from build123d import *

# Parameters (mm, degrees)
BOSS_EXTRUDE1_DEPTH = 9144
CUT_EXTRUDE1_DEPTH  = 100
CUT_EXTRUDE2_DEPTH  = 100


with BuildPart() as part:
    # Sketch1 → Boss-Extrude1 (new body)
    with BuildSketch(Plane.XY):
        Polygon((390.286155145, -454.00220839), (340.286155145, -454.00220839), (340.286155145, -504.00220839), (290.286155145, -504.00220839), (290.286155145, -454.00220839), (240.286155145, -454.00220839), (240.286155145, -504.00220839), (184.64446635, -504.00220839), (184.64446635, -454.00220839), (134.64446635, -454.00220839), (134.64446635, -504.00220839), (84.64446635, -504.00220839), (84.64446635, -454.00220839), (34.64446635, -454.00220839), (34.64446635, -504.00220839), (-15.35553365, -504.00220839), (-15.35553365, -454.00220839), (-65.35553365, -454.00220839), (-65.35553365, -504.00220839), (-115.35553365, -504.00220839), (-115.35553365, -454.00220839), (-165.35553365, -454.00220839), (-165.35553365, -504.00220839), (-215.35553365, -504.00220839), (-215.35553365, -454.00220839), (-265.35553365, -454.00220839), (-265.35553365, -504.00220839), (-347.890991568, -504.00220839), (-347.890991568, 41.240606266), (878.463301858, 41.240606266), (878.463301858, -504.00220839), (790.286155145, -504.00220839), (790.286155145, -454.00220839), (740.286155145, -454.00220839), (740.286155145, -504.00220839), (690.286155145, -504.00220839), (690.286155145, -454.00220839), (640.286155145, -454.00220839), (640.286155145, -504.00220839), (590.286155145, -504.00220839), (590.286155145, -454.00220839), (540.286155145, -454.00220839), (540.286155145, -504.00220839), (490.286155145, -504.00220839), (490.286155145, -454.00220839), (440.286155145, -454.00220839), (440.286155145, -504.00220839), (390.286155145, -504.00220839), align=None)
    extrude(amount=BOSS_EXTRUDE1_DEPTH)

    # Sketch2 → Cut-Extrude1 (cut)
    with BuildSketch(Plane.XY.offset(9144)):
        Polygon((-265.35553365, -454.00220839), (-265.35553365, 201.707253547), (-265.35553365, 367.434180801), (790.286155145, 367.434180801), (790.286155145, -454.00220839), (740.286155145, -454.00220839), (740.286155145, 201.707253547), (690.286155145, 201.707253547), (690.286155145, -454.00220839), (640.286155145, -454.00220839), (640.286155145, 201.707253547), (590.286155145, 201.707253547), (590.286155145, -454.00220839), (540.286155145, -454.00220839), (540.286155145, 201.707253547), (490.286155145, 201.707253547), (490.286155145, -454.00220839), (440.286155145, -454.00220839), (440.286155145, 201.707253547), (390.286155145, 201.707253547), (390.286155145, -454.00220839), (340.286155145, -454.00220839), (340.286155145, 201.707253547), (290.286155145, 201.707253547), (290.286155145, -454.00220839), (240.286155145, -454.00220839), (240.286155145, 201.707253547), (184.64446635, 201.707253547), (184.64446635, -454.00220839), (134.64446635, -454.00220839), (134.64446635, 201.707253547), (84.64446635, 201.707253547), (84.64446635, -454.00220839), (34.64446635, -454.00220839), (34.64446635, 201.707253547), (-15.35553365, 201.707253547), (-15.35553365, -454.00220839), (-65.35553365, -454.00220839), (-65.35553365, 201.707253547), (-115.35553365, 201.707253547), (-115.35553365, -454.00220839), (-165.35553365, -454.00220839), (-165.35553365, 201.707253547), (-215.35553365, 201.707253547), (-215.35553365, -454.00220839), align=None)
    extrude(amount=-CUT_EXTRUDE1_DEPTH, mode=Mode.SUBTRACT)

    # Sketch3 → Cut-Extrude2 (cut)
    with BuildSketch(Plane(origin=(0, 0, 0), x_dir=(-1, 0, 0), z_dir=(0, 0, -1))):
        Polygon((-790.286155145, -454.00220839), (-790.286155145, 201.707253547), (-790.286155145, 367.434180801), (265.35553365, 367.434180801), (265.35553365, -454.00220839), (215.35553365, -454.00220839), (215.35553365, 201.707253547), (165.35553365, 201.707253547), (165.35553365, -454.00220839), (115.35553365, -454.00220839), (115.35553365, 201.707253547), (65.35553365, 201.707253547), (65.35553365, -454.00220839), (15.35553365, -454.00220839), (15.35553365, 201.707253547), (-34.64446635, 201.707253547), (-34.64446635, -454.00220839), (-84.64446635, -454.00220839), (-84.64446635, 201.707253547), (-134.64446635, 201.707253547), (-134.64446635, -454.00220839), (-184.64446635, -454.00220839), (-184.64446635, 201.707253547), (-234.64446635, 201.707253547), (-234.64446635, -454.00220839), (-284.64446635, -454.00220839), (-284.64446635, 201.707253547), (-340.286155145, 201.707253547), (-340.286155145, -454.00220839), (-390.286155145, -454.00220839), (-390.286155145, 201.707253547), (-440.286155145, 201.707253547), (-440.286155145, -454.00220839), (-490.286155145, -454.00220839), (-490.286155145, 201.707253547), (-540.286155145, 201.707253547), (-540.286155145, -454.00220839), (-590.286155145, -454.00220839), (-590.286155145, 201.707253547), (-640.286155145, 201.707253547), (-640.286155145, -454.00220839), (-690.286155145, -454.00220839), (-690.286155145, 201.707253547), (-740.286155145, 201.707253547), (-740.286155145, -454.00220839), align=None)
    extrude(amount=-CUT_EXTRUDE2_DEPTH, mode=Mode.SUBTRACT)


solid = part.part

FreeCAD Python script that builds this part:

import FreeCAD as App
import Part
import Sketcher

V = App.Vector
Q = App.Units.Quantity


def add_polygon(sketch, points):
    """Adds a closed chain of lines whose ends are joined by coincident constraints."""
    first, n = sketch.GeometryCount, len(points)
    for a, b in zip(points, points[1:] + points[:1]):
        sketch.addGeometry(Part.LineSegment(App.Vector(*a, 0), App.Vector(*b, 0)), False)
    for i in range(n):
        sketch.addConstraint(Sketcher.Constraint("Coincident", first + i, 2, first + (i + 1) % n, 1))

doc = App.newDocument("Part")
body = doc.addObject("PartDesign::Body", "Body")

# Sketch on XY plane
sketch1 = body.newObject("Sketcher::SketchObject", "Sketch")
sketch1.AttachmentSupport = (doc.getObject("XY_Plane"), [""])
sketch1.MapMode = "FlatFace"
add_polygon(sketch1, [(340.286155, -454.002208), (390.286155, -454.002208), (390.286155, -504.002208), (440.286155, -504.002208), (440.286155, -454.002208), (490.286155, -454.002208), (490.286155, -504.002208), (540.286155, -504.002208), (540.286155, -454.002208), (590.286155, -454.002208), (590.286155, -504.002208), (640.286155, -504.002208), (640.286155, -454.002208), (690.286155, -454.002208), (690.286155, -504.002208), (740.286155, -504.002208), (740.286155, -454.002208), (790.286155, -454.002208), (790.286155, -504.002208), (878.463302, -504.002208), (878.463302, 41.240606), (-347.890992, 41.240606), (-347.890992, -504.002208), (-265.355534, -504.002208), (-265.355534, -454.002208), (-215.355534, -454.002208), (-215.355534, -504.002208), (-165.355534, -504.002208), (-165.355534, -454.002208), (-115.355534, -454.002208), (-115.355534, -504.002208), (-65.355534, -504.002208), (-65.355534, -454.002208), (-15.355534, -454.002208), (-15.355534, -504.002208), (34.644466, -504.002208), (34.644466, -454.002208), (84.644466, -454.002208), (84.644466, -504.002208), (134.644466, -504.002208), (134.644466, -454.002208), (184.644466, -454.002208), (184.644466, -504.002208), (240.286155, -504.002208), (240.286155, -454.002208), (290.286155, -454.002208), (290.286155, -504.002208), (340.286155, -504.002208)])  # lines 0-47
sketch1.addConstraint([
    Sketcher.Constraint("Horizontal", 0),
    Sketcher.Constraint("Vertical", 1),
    Sketcher.Constraint("Horizontal", 2),
    Sketcher.Constraint("Vertical", 3),
    Sketcher.Constraint("Horizontal", 4),
    Sketcher.Constraint("Vertical", 5),
    Sketcher.Constraint("Horizontal", 6),
    Sketcher.Constraint("Vertical", 7),
    Sketcher.Constraint("Horizontal", 8),
    Sketcher.Constraint("Vertical", 9),
    Sketcher.Constraint("Horizontal", 10),
    Sketcher.Constraint("Vertical", 11),
    Sketcher.Constraint("Horizontal", 12),
    Sketcher.Constraint("Vertical", 13),
    Sketcher.Constraint("Horizontal", 14),
    Sketcher.Constraint("Vertical", 15),
    Sketcher.Constraint("Horizontal", 16),
    Sketcher.Constraint("Vertical", 17),
    Sketcher.Constraint("Horizontal", 18),
    Sketcher.Constraint("Vertical", 19),
    Sketcher.Constraint("Horizontal", 20),
    Sketcher.Constraint("Vertical", 21),
    Sketcher.Constraint("Horizontal", 22),
    Sketcher.Constraint("Vertical", 23),
    Sketcher.Constraint("Horizontal", 24),
    Sketcher.Constraint("Vertical", 25),
    Sketcher.Constraint("Horizontal", 26),
    Sketcher.Constraint("Vertical", 27),
    Sketcher.Constraint("Horizontal", 28),
    Sketcher.Constraint("Vertical", 29),
    Sketcher.Constraint("Horizontal", 30),
    Sketcher.Constraint("Vertical", 31),
    Sketcher.Constraint("Horizontal", 32),
    Sketcher.Constraint("Vertical", 33),
    Sketcher.Constraint("Horizontal", 34),
    Sketcher.Constraint("Vertical", 35),
    Sketcher.Constraint("Horizontal", 36),
    Sketcher.Constraint("Vertical", 37),
    Sketcher.Constraint("Horizontal", 38),
    Sketcher.Constraint("Vertical", 39),
    Sketcher.Constraint("Horizontal", 40),
    Sketcher.Constraint("Vertical", 41),
    Sketcher.Constraint("Horizontal", 42),
    Sketcher.Constraint("Vertical", 43),
    Sketcher.Constraint("Horizontal", 44),
    Sketcher.Constraint("Vertical", 45),
    Sketcher.Constraint("Horizontal", 46),
    Sketcher.Constraint("Vertical", 47),
    Sketcher.Constraint("Horizontal", 0, 2, 3, 2),
    Sketcher.Constraint("Horizontal", 2, 2, 5, 2),
    Sketcher.Constraint("Horizontal", 4, 2, 7, 2),
    Sketcher.Constraint("Horizontal", 6, 2, 9, 2),
    Sketcher.Constraint("Horizontal", 8, 2, 11, 2),
    Sketcher.Constraint("Horizontal", 10, 2, 13, 2),
    Sketcher.Constraint("Horizontal", 12, 2, 15, 2),
    Sketcher.Constraint("Horizontal", 14, 2, 17, 2),
    Sketcher.Constraint("Horizontal", 18, 2, 21, 2),
    Sketcher.Constraint("Horizontal", 16, 2, 23, 2),
    Sketcher.Constraint("Horizontal", 22, 2, 25, 2),
    Sketcher.Constraint("Horizontal", 24, 2, 27, 2),
    Sketcher.Constraint("Horizontal", 26, 2, 29, 2),
    Sketcher.Constraint("Horizontal", 28, 2, 31, 2),
    Sketcher.Constraint("Horizontal", 30, 2, 33, 2),
    Sketcher.Constraint("Horizontal", 32, 2, 35, 2),
    Sketcher.Constraint("Horizontal", 34, 2, 37, 2),
    Sketcher.Constraint("Horizontal", 36, 2, 39, 2),
    Sketcher.Constraint("Horizontal", 38, 2, 41, 2),
    Sketcher.Constraint("Horizontal", 40, 2, 43, 2),
    Sketcher.Constraint("Horizontal", 42, 2, 45, 2),
    Sketcher.Constraint("Equal", 0, 2),
    Sketcher.Constraint("Equal", 2, 4),
    Sketcher.Constraint("Equal", 4, 6),
    Sketcher.Constraint("Equal", 6, 8),
    Sketcher.Constraint("Equal", 8, 10),
    Sketcher.Constraint("Equal", 10, 12),
    Sketcher.Constraint("Equal", 12, 14),
    Sketcher.Constraint("Equal", 14, 16),
    Sketcher.Constraint("Equal", 16, 24),
    Sketcher.Constraint("Equal", 24, 26),
    Sketcher.Constraint("Equal", 26, 28),
    Sketcher.Constraint("Equal", 28, 30),
    Sketcher.Constraint("Equal", 30, 32),
    Sketcher.Constraint("Equal", 32, 34),
    Sketcher.Constraint("Equal", 34, 36),
    Sketcher.Constraint("Equal", 36, 38),
    Sketcher.Constraint("Equal", 38, 40),
    Sketcher.Constraint("Equal", 40, 44),
    Sketcher.Constraint("Equal", 44, 46),
    Sketcher.Constraint("Equal", 46, 1),
    Sketcher.Constraint("DistanceX", 0, 1, 0, 2, Q("50 mm")),
    Sketcher.Constraint("DistanceX", 42, 1, 42, 2, Q("55.641689 mm")),
    Sketcher.Constraint("DistanceX", -1, 1, 18, 2, Q("878.463302 mm")),
    Sketcher.Constraint("DistanceX", 18, 1, 18, 2, Q("88.177147 mm")),
    Sketcher.Constraint("DistanceX", 20, 2, 20, 1, Q("1226.354293 mm")),
    Sketcher.Constraint("DistanceY", 19, 1, 19, 2, Q("545.242815 mm")),
    Sketcher.Constraint("DistanceY", 0, 2, -1, 1, Q("454.002208 mm")),
])
pad1 = body.newObject("PartDesign::Pad", "Pad")
pad1.Profile = sketch1
pad1.Length = 9144

# Sketch on XY plane
sketch2 = body.newObject("Sketcher::SketchObject", "Sketch001")
sketch2.AttachmentSupport = (doc.getObject("XY_Plane"), [""])
sketch2.MapMode = "FlatFace"
sketch2.AttachmentOffset = App.Placement(V(0, 0, 9144), App.Rotation())
add_polygon(sketch2, [(-265.355534, 367.434181), (-265.355534, -454.002208), (-215.355534, -454.002208), (-215.355534, 201.707254), (-165.355534, 201.707254), (-165.355534, -454.002208), (-115.355534, -454.002208), (-115.355534, 201.707254), (-65.355534, 201.707254), (-65.355534, -454.002208), (-15.355534, -454.002208), (-15.355534, 201.707254), (34.644466, 201.707254), (34.644466, -454.002208), (84.644466, -454.002208), (84.644466, 201.707254), (134.644466, 201.707254), (134.644466, -454.002208), (184.644466, -454.002208), (184.644466, 201.707254), (240.286155, 201.707254), (240.286155, -454.002208), (290.286155, -454.002208), (290.286155, 201.707254), (340.286155, 201.707254), (340.286155, -454.002208), (390.286155, -454.002208), (390.286155, 201.707254), (440.286155, 201.707254), (440.286155, -454.002208), (490.286155, -454.002208), (490.286155, 201.707254), (540.286155, 201.707254), (540.286155, -454.002208), (590.286155, -454.002208), (590.286155, 201.707254), (640.286155, 201.707254), (640.286155, -454.002208), (690.286155, -454.002208), (690.286155, 201.707254), (740.286155, 201.707254), (740.286155, -454.002208), (790.286155, -454.002208), (790.286155, 367.434181)])  # lines 0-43
sketch2.addConstraint([
    Sketcher.Constraint("Vertical", 0),
    Sketcher.Constraint("Horizontal", 1),
    Sketcher.Constraint("Vertical", 2),
    Sketcher.Constraint("Horizontal", 3),
    Sketcher.Constraint("Vertical", 4),
    Sketcher.Constraint("Horizontal", 5),
    Sketcher.Constraint("Vertical", 6),
    Sketcher.Constraint("Horizontal", 7),
    Sketcher.Constraint("Vertical", 8),
    Sketcher.Constraint("Horizontal", 9),
    Sketcher.Constraint("Vertical", 10),
    Sketcher.Constraint("Horizontal", 11),
    Sketcher.Constraint("Vertical", 12),
    Sketcher.Constraint("Horizontal", 13),
    Sketcher.Constraint("Vertical", 14),
    Sketcher.Constraint("Horizontal", 15),
    Sketcher.Constraint("Vertical", 16),
    Sketcher.Constraint("Horizontal", 17),
    Sketcher.Constraint("Vertical", 18),
    Sketcher.Constraint("Horizontal", 19),
    Sketcher.Constraint("Vertical", 20),
    Sketcher.Constraint("Horizontal", 21),
    Sketcher.Constraint("Vertical", 22),
    Sketcher.Constraint("Horizontal", 23),
    Sketcher.Constraint("Vertical", 24),
    Sketcher.Constraint("Horizontal", 25),
    Sketcher.Constraint("Vertical", 26),
    Sketcher.Constraint("Horizontal", 27),
    Sketcher.Constraint("Vertical", 28),
    Sketcher.Constraint("Horizontal", 29),
    Sketcher.Constraint("Vertical", 30),
    Sketcher.Constraint("Horizontal", 31),
    Sketcher.Constraint("Vertical", 32),
    Sketcher.Constraint("Horizontal", 33),
    Sketcher.Constraint("Vertical", 34),
    Sketcher.Constraint("Horizontal", 35),
    Sketcher.Constraint("Vertical", 36),
    Sketcher.Constraint("Horizontal", 37),
    Sketcher.Constraint("Vertical", 38),
    Sketcher.Constraint("Horizontal", 39),
    Sketcher.Constraint("Vertical", 40),
    Sketcher.Constraint("Horizontal", 41),
    Sketcher.Constraint("Vertical", 42),
    Sketcher.Constraint("Horizontal", 43),
    Sketcher.Constraint("Horizontal", 1, 2, 4, 2),
    Sketcher.Constraint("Horizontal", 3, 2, 6, 2),
    Sketcher.Constraint("Horizontal", 5, 2, 8, 2),
    Sketcher.Constraint("Horizontal", 7, 2, 10, 2),
    Sketcher.Constraint("Horizontal", 9, 2, 12, 2),
    Sketcher.Constraint("Horizontal", 11, 2, 14, 2),
    Sketcher.Constraint("Horizontal", 13, 2, 16, 2),
    Sketcher.Constraint("Horizontal", 15, 2, 18, 2),
    Sketcher.Constraint("Horizontal", 17, 2, 20, 2),
    Sketcher.Constraint("Horizontal", 19, 2, 22, 2),
    Sketcher.Constraint("Horizontal", 21, 2, 24, 2),
    Sketcher.Constraint("Horizontal", 23, 2, 26, 2),
    Sketcher.Constraint("Horizontal", 25, 2, 28, 2),
    Sketcher.Constraint("Horizontal", 27, 2, 30, 2),
    Sketcher.Constraint("Horizontal", 29, 2, 32, 2),
    Sketcher.Constraint("Horizontal", 31, 2, 34, 2),
    Sketcher.Constraint("Horizontal", 33, 2, 36, 2),
    Sketcher.Constraint("Horizontal", 35, 2, 38, 2),
    Sketcher.Constraint("Horizontal", 37, 2, 40, 2),
    Sketcher.Constraint("Equal", 1, 3),
    Sketcher.Constraint("Equal", 3, 5),
    Sketcher.Constraint("Equal", 5, 7),
    Sketcher.Constraint("Equal", 7, 9),
    Sketcher.Constraint("Equal", 9, 11),
    Sketcher.Constraint("Equal", 11, 13),
    Sketcher.Constraint("Equal", 13, 15),
    Sketcher.Constraint("Equal", 15, 17),
    Sketcher.Constraint("Equal", 17, 21),
    Sketcher.Constraint("Equal", 21, 23),
    Sketcher.Constraint("Equal", 23, 25),
    Sketcher.Constraint("Equal", 25, 27),
    Sketcher.Constraint("Equal", 27, 29),
    Sketcher.Constraint("Equal", 29, 31),
    Sketcher.Constraint("Equal", 31, 33),
    Sketcher.Constraint("Equal", 33, 35),
    Sketcher.Constraint("Equal", 35, 37),
    Sketcher.Constraint("Equal", 37, 39),
    Sketcher.Constraint("Equal", 39, 41),
    Sketcher.Constraint("DistanceX", 1, 1, 1, 2, Q("50 mm")),
    Sketcher.Constraint("DistanceX", 19, 1, 19, 2, Q("55.641689 mm")),
    Sketcher.Constraint("DistanceY", 0, 2, 0, 1, Q("821.436389 mm")),
    Sketcher.Constraint("DistanceY", 2, 1, 2, 2, Q("655.709462 mm")),
    Sketcher.Constraint("DistanceY", 0, 2, -1, 1, Q("454.002208 mm")),
    Sketcher.Constraint("DistanceX", 0, 2, -1, 1, Q("265.355534 mm")),
])
pocket1 = body.newObject("PartDesign::Pocket", "Pocket")
pocket1.Profile = sketch2
pocket1.Length = 100

# Sketch on XY plane
sketch3 = body.newObject("Sketcher::SketchObject", "Sketch002")
sketch3.AttachmentSupport = (doc.getObject("XY_Plane"), [""])
sketch3.MapMode = "FlatFace"
add_polygon(sketch3, [(790.286155, 367.434181), (790.286155, -454.002208), (740.286155, -454.002208), (740.286155, 201.707254), (690.286155, 201.707254), (690.286155, -454.002208), (640.286155, -454.002208), (640.286155, 201.707254), (590.286155, 201.707254), (590.286155, -454.002208), (540.286155, -454.002208), (540.286155, 201.707254), (490.286155, 201.707254), (490.286155, -454.002208), (440.286155, -454.002208), (440.286155, 201.707254), (390.286155, 201.707254), (390.286155, -454.002208), (340.286155, -454.002208), (340.286155, 201.707254), (284.644466, 201.707254), (284.644466, -454.002208), (234.644466, -454.002208), (234.644466, 201.707254), (184.644466, 201.707254), (184.644466, -454.002208), (134.644466, -454.002208), (134.644466, 201.707254), (84.644466, 201.707254), (84.644466, -454.002208), (34.644466, -454.002208), (34.644466, 201.707254), (-15.355534, 201.707254), (-15.355534, -454.002208), (-65.355534, -454.002208), (-65.355534, 201.707254), (-115.355534, 201.707254), (-115.355534, -454.002208), (-165.355534, -454.002208), (-165.355534, 201.707254), (-215.355534, 201.707254), (-215.355534, -454.002208), (-265.355534, -454.002208), (-265.355534, 367.434181)])  # lines 0-43
sketch3.addConstraint([
    Sketcher.Constraint("Vertical", 0),
    Sketcher.Constraint("Horizontal", 1),
    Sketcher.Constraint("Vertical", 2),
    Sketcher.Constraint("Horizontal", 3),
    Sketcher.Constraint("Vertical", 4),
    Sketcher.Constraint("Horizontal", 5),
    Sketcher.Constraint("Vertical", 6),
    Sketcher.Constraint("Horizontal", 7),
    Sketcher.Constraint("Vertical", 8),
    Sketcher.Constraint("Horizontal", 9),
    Sketcher.Constraint("Vertical", 10),
    Sketcher.Constraint("Horizontal", 11),
    Sketcher.Constraint("Vertical", 12),
    Sketcher.Constraint("Horizontal", 13),
    Sketcher.Constraint("Vertical", 14),
    Sketcher.Constraint("Horizontal", 15),
    Sketcher.Constraint("Vertical", 16),
    Sketcher.Constraint("Horizontal", 17),
    Sketcher.Constraint("Vertical", 18),
    Sketcher.Constraint("Horizontal", 19),
    Sketcher.Constraint("Vertical", 20),
    Sketcher.Constraint("Horizontal", 21),
    Sketcher.Constraint("Vertical", 22),
    Sketcher.Constraint("Horizontal", 23),
    Sketcher.Constraint("Vertical", 24),
    Sketcher.Constraint("Horizontal", 25),
    Sketcher.Constraint("Vertical", 26),
    Sketcher.Constraint("Horizontal", 27),
    Sketcher.Constraint("Vertical", 28),
    Sketcher.Constraint("Horizontal", 29),
    Sketcher.Constraint("Vertical", 30),
    Sketcher.Constraint("Horizontal", 31),
    Sketcher.Constraint("Vertical", 32),
    Sketcher.Constraint("Horizontal", 33),
    Sketcher.Constraint("Vertical", 34),
    Sketcher.Constraint("Horizontal", 35),
    Sketcher.Constraint("Vertical", 36),
    Sketcher.Constraint("Horizontal", 37),
    Sketcher.Constraint("Vertical", 38),
    Sketcher.Constraint("Horizontal", 39),
    Sketcher.Constraint("Vertical", 40),
    Sketcher.Constraint("Horizontal", 41),
    Sketcher.Constraint("Vertical", 42),
    Sketcher.Constraint("Horizontal", 43),
    Sketcher.Constraint("Horizontal", 1, 2, 4, 2),
    Sketcher.Constraint("Horizontal", 3, 2, 6, 2),
    Sketcher.Constraint("Horizontal", 5, 2, 8, 2),
    Sketcher.Constraint("Horizontal", 7, 2, 10, 2),
    Sketcher.Constraint("Horizontal", 9, 2, 12, 2),
    Sketcher.Constraint("Horizontal", 11, 2, 14, 2),
    Sketcher.Constraint("Horizontal", 13, 2, 16, 2),
    Sketcher.Constraint("Horizontal", 15, 2, 18, 2),
    Sketcher.Constraint("Horizontal", 17, 2, 20, 2),
    Sketcher.Constraint("Horizontal", 19, 2, 22, 2),
    Sketcher.Constraint("Horizontal", 21, 2, 24, 2),
    Sketcher.Constraint("Horizontal", 23, 2, 26, 2),
    Sketcher.Constraint("Horizontal", 25, 2, 28, 2),
    Sketcher.Constraint("Horizontal", 27, 2, 30, 2),
    Sketcher.Constraint("Horizontal", 29, 2, 32, 2),
    Sketcher.Constraint("Horizontal", 31, 2, 34, 2),
    Sketcher.Constraint("Horizontal", 33, 2, 36, 2),
    Sketcher.Constraint("Horizontal", 35, 2, 38, 2),
    Sketcher.Constraint("Horizontal", 37, 2, 40, 2),
    Sketcher.Constraint("Equal", 1, 3),
    Sketcher.Constraint("Equal", 3, 5),
    Sketcher.Constraint("Equal", 5, 7),
    Sketcher.Constraint("Equal", 7, 9),
    Sketcher.Constraint("Equal", 9, 11),
    Sketcher.Constraint("Equal", 11, 13),
    Sketcher.Constraint("Equal", 13, 15),
    Sketcher.Constraint("Equal", 15, 17),
    Sketcher.Constraint("Equal", 17, 21),
    Sketcher.Constraint("Equal", 21, 23),
    Sketcher.Constraint("Equal", 23, 25),
    Sketcher.Constraint("Equal", 25, 27),
    Sketcher.Constraint("Equal", 27, 29),
    Sketcher.Constraint("Equal", 29, 31),
    Sketcher.Constraint("Equal", 31, 33),
    Sketcher.Constraint("Equal", 33, 35),
    Sketcher.Constraint("Equal", 35, 37),
    Sketcher.Constraint("Equal", 37, 39),
    Sketcher.Constraint("Equal", 39, 41),
    Sketcher.Constraint("DistanceX", 1, 2, 1, 1, Q("50 mm")),
    Sketcher.Constraint("DistanceX", 19, 2, 19, 1, Q("55.641689 mm")),
    Sketcher.Constraint("DistanceY", 0, 2, 0, 1, Q("821.436389 mm")),
    Sketcher.Constraint("DistanceY", 2, 1, 2, 2, Q("655.709462 mm")),
    Sketcher.Constraint("DistanceY", 0, 2, -1, 1, Q("454.002208 mm")),
    Sketcher.Constraint("DistanceX", -1, 1, 0, 2, Q("790.286155 mm")),
])
pocket2 = body.newObject("PartDesign::Pocket", "Pocket001")
pocket2.Profile = sketch3
pocket2.Length = 100
pocket2.Reversed = True

doc.recompute()
